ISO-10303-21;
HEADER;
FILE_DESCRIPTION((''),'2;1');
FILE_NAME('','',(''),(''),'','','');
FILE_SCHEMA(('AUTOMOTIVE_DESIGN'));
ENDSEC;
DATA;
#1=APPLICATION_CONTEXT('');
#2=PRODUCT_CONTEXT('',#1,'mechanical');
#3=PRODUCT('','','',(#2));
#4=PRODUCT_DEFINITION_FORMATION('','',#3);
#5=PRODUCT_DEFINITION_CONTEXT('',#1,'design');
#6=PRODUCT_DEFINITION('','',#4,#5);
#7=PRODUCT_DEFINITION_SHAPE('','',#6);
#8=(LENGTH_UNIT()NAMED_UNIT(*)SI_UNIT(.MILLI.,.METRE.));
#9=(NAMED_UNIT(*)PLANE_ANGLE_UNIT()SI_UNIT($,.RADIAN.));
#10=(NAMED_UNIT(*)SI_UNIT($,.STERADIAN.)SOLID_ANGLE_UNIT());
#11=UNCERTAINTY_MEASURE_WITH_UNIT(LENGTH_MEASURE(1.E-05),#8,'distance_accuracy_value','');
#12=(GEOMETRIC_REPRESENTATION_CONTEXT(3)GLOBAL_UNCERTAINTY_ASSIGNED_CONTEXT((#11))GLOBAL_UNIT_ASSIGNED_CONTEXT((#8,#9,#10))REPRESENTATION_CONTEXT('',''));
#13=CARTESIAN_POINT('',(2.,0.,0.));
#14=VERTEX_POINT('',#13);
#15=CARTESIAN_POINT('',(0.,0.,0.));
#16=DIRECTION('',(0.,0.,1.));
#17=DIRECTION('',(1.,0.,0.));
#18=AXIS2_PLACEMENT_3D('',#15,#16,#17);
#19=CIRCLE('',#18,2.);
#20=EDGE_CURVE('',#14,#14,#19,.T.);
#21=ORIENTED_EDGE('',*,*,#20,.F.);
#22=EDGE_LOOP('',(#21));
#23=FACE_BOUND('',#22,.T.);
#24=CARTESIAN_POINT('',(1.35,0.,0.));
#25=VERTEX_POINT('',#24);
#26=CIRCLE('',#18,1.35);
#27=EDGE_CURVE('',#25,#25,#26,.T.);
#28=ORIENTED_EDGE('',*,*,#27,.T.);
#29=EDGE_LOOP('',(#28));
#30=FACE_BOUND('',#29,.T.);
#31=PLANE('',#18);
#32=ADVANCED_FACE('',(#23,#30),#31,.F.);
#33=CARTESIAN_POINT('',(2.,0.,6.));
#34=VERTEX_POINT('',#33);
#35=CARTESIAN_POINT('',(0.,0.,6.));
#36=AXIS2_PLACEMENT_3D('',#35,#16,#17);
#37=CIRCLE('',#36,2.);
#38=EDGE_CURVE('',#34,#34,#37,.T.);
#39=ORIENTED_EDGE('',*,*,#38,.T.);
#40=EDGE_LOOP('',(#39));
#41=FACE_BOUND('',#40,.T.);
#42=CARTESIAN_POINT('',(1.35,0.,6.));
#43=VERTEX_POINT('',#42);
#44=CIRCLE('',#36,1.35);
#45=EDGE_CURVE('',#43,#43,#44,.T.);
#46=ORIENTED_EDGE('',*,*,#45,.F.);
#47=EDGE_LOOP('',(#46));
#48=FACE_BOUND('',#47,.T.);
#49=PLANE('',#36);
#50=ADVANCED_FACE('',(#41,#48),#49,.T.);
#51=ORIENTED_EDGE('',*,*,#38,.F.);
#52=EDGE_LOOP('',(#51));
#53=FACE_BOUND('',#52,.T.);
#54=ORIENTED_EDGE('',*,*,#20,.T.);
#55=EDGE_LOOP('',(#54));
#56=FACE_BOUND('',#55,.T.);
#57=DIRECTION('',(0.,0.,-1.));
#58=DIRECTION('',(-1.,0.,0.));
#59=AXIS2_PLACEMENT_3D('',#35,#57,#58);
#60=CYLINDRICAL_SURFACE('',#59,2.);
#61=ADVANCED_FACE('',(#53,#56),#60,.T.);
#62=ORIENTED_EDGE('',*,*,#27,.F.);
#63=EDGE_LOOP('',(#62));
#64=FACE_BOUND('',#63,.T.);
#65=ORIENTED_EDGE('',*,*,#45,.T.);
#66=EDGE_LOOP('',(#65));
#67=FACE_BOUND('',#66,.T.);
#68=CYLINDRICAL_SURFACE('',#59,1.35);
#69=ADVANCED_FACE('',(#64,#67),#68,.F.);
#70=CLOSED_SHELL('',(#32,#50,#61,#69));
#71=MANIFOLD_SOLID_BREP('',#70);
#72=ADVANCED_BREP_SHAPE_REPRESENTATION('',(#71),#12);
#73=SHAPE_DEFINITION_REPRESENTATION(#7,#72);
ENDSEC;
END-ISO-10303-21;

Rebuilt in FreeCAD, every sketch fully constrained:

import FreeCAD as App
import Part
import Sketcher

doc = App.newDocument("Part")
params = doc.addObject("Spreadsheet::Sheet", "Params")
for row, (alias, value) in enumerate([
    ("sketch1_diameter", "4 mm"),
    ("sketch1_diameter2", "2.7 mm"),
    ("pad1_length", "6 mm"),
], start=1):
    params.set(f"A{row}", alias)
    params.set(f"B{row}", "=" + value)
    params.setAlias(f"B{row}", alias)

body = doc.addObject("PartDesign::Body", "Body")

sketch1 = body.newObject("Sketcher::SketchObject", "Sketch")
sketch1.AttachmentSupport = (doc.getObject("XY_Plane"), [""])
sketch1.MapMode = "FlatFace"
sketch1.addGeometry([
    Part.Circle(App.Vector(0, 0, 0), App.Vector(0, 0, 1), 2),
    Part.Circle(App.Vector(0, 0, 0), App.Vector(0, 0, 1), 1.4),
], False)
sketch1.addConstraint([
    Sketcher.Constraint("Coincident", 0, 3, -1, 1),
    Sketcher.Constraint("Coincident", 1, 3, -1, 1),
    Sketcher.Constraint("Diameter", 0, 4.0),
    Sketcher.Constraint("Diameter", 1, 2.7),
])
sketch1.setExpression("Constraints[2]", "Params.sketch1_diameter")
sketch1.setExpression("Constraints[3]", "Params.sketch1_diameter2")
pad1 = body.newObject("PartDesign::Pad", "Pad")
pad1.Profile = sketch1
pad1.setExpression("Length", "Params.pad1_length")

doc.recompute()
